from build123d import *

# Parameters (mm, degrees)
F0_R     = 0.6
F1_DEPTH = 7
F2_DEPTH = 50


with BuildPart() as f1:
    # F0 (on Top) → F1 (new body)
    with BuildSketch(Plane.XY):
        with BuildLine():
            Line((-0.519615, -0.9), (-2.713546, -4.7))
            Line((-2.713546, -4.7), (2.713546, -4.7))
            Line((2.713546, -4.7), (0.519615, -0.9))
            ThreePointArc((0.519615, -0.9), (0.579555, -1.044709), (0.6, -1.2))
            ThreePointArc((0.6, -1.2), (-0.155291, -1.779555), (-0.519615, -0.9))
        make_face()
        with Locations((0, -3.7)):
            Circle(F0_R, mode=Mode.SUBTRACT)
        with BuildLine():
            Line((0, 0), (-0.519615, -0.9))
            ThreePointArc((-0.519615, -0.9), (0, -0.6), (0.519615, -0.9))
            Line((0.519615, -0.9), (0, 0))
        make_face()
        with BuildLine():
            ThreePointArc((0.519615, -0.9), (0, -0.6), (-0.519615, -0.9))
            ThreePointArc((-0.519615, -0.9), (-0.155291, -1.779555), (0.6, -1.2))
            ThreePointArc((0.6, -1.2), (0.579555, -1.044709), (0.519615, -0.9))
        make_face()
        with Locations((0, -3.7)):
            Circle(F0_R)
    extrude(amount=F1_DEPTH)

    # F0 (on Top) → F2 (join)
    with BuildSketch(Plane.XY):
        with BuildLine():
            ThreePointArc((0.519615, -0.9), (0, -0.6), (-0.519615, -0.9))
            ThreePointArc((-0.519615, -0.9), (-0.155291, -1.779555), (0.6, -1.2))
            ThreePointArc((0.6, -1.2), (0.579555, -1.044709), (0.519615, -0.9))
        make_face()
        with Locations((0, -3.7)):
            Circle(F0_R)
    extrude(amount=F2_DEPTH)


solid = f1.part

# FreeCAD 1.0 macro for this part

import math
import FreeCAD as App
import Part
import Sketcher
from FreeCAD import Vector
Q = App.Units.Quantity


def add_polygon(sketch, points):
    """Adds a closed chain of lines whose ends are joined by coincident constraints."""
    first, n = sketch.GeometryCount, len(points)
    for a, b in zip(points, points[1:] + points[:1]):
        sketch.addGeometry(Part.LineSegment(App.Vector(*a, 0), App.Vector(*b, 0)), False)
    for i in range(n):
        sketch.addConstraint(Sketcher.Constraint("Coincident", first + i, 2, first + (i + 1) % n, 1))

doc = App.newDocument("Part")
params = doc.addObject("Spreadsheet::Sheet", "Params")
for row, (alias, value) in enumerate([
    ("pad1_length", "7 mm"),
    ("sketch2_diameter", "1.2 mm"),
    ("pad2_length", "50 mm"),
], start=1):
    params.set(f"A{row}", alias)
    params.set(f"B{row}", "=" + value)
    params.setAlias(f"B{row}", alias)

body = doc.addObject("PartDesign::Body", "Body")

# Sketch on XY plane
sketch1 = doc.addObject("Sketcher::SketchObject", "Sketch")
body.addObject(sketch1)
sketch1.AttachmentSupport = (doc.XY_Plane, [""])
sketch1.MapMode = "FlatFace"
add_polygon(sketch1, [(-0.519615, -0.9), (-2.713546, -4.7), (2.713546, -4.7), (0.519615, -0.9), (0, 0)])  # lines 0-4
sketch1.addConstraint(Sketcher.Constraint("Horizontal", 1))
sketch1.addConstraint(Sketcher.Constraint("Coincident", 3, 2, -1, 1))
sketch1.addConstraint(Sketcher.Constraint("Symmetric", 2, 2, 4, 2, -2))
sketch1.addConstraint(Sketcher.Constraint("Parallel", 2, 3))
sketch1.addConstraint(Sketcher.Constraint("Parallel", 0, 4))
sketch1.addConstraint(Sketcher.Constraint("Angle", 0, Q("-120 deg")))
sketch1.addConstraint(Sketcher.Constraint("DistanceY", 0, 2, -1, 1, 4.7))
sketch1.addConstraint(Sketcher.Constraint("DistanceY", 2, 2, -1, 1, 0.9))
pad1 = doc.addObject("PartDesign::Pad", "Pad")
body.addObject(pad1)
pad1.Profile = sketch1
pad1.setExpression("Length", "Params.pad1_length")

# Sketch on XY plane
sketch2 = doc.addObject("Sketcher::SketchObject", "Sketch001")
body.addObject(sketch2)
sketch2.AttachmentSupport = (doc.XY_Plane, [""])
sketch2.MapMode = "FlatFace"
sketch2.addGeometry(Part.ArcOfCircle(Part.Circle(Vector(0, -1.2, 0), Vector(0, 0, 1), 0.6), math.radians(29.999977), math.radians(150.000023)), False)
sketch2.addGeometry(Part.ArcOfCircle(Part.Circle(Vector(0, -1.2, 0), Vector(0, 0, 1), 0.6), math.radians(150.000027), math.radians(359.999967)), False)
sketch2.addGeometry(Part.ArcOfCircle(Part.Circle(Vector(-0.000014, -1.200004, 0), Vector(0, 0, 1), 0.600014), math.radians(0.000389), math.radians(29.999698)), False)
sketch2.addGeometry(Part.Circle(Vector(0, -3.7, 0), Vector(0, 0, 1), 0.6), False)
sketch2.addConstraint(Sketcher.Constraint("Tangent", 0, 2, 1, 1))
sketch2.addConstraint(Sketcher.Constraint("Coincident", 1, 2, 2, 1))
sketch2.addConstraint(Sketcher.Constraint("Coincident", 2, 2, 0, 1))
sketch2.addConstraint(Sketcher.Constraint("Equal", 0, 1))
sketch2.addConstraint(Sketcher.Constraint("Equal", 1, 3))
sketch2.addConstraint(Sketcher.Constraint("Symmetric", 0, 2, 2, 2, -2))
sketch2.addConstraint(Sketcher.Constraint("PointOnObject", 3, 3, -2))
sketch2.addConstraint(Sketcher.Constraint("Horizontal", 0, 3, 1, 2))
sketch2.addConstraint(Sketcher.Constraint("Diameter", 3, 1.2))
sketch2.addConstraint(Sketcher.Constraint("DistanceY", 0, 3, -1, 1, 1.2))
sketch2.addConstraint(Sketcher.Constraint("DistanceY", 3, 3, -1, 1, 3.7))
sketch2.addConstraint(Sketcher.Constraint("DistanceY", 0, 2, -1, 1, 0.9))
sketch2.addConstraint(Sketcher.Constraint("Radius", 2, 0.600014))
sketch2.setExpression("Constraints[8]", "Params.sketch2_diameter")
pad2 = doc.addObject("PartDesign::Pad", "Pad001")
body.addObject(pad2)
pad2.Profile = sketch2
pad2.setExpression("Length", "Params.pad2_length")

doc.recompute()
